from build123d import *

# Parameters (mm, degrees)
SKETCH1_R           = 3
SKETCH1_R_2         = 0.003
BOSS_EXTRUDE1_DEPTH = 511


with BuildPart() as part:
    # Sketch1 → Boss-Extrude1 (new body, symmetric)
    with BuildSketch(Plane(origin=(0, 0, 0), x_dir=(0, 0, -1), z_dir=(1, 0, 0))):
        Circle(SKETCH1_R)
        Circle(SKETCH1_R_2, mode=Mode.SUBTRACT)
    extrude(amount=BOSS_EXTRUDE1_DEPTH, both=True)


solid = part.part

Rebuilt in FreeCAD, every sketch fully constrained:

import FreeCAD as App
import Part
import Sketcher
from FreeCAD import Vector
Q = App.Units.Quantity

doc = App.newDocument("Part")
body = doc.addObject("PartDesign::Body", "Body")

sketch1 = doc.addObject("Sketcher::SketchObject", "Sketch")
body.addObject(sketch1)
sketch1.AttachmentSupport = (doc.YZ_Plane, [""])
sketch1.MapMode = "FlatFace"
sketch1.addGeometry(Part.Circle(Vector(0, 0, 0), Vector(0, 0, 1), 3), False)
sketch1.addGeometry(Part.Circle(Vector(0, 0, 0), Vector(0, 0, 1), 0.003), False)
sketch1.addConstraint(Sketcher.Constraint("Coincident", 0, 3, -1, 1))
sketch1.addConstraint(Sketcher.Constraint("Coincident", 1, 3, -1, 1))
sketch1.addConstraint(Sketcher.Constraint("Diameter", 0, Q("6 mm")))
sketch1.addConstraint(Sketcher.Constraint("Diameter", 1, Q("0.006 mm")))
pad1 = doc.addObject("PartDesign::Pad", "Pad")
body.addObject(pad1)
pad1.Profile = sketch1
pad1.Length = 1022
pad1.Midplane = True

doc.recompute()
